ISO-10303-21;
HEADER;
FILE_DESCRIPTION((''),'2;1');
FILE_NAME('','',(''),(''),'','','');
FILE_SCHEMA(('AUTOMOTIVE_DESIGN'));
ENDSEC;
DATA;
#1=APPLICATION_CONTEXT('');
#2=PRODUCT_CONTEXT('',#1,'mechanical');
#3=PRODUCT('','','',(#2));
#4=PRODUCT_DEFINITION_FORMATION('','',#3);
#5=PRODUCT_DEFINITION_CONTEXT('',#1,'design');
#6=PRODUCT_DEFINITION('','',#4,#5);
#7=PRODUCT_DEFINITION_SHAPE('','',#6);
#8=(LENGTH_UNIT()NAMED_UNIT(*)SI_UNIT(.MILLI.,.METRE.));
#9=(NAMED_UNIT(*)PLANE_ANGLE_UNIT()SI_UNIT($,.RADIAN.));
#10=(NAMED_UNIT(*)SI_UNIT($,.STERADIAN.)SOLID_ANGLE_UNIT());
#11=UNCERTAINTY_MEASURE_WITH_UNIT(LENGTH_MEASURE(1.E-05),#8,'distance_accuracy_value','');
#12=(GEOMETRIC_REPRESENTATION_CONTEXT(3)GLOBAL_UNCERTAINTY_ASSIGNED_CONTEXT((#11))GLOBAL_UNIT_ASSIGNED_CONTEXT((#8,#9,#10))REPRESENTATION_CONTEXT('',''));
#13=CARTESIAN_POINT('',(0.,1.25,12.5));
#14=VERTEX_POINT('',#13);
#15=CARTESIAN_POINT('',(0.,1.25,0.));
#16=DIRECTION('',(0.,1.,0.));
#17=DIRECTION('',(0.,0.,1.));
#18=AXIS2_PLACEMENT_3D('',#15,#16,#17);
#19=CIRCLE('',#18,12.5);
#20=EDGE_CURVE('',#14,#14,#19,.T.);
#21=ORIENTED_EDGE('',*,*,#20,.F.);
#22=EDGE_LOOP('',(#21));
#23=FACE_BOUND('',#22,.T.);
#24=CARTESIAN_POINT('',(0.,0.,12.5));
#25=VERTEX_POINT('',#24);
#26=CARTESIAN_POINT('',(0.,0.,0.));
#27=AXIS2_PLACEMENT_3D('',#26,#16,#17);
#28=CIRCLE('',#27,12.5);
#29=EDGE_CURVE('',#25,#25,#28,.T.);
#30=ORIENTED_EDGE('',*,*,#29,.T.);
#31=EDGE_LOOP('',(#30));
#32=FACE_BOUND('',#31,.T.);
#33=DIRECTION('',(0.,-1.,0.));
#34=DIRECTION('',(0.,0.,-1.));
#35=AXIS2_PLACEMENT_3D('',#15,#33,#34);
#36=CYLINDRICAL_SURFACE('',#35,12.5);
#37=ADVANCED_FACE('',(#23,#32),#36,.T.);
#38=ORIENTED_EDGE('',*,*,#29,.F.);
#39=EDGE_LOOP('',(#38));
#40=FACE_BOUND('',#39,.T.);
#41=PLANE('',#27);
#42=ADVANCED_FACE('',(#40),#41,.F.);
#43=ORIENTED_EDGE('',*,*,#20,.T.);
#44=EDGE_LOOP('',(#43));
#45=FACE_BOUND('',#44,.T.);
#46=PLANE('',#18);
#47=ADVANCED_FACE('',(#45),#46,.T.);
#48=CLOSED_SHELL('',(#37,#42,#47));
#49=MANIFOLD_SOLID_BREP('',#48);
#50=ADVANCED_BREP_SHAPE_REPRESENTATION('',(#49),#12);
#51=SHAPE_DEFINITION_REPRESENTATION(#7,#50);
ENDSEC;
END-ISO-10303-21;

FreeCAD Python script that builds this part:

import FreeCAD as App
import Part
import Sketcher
from FreeCAD import Vector

doc = App.newDocument("Part")
body = doc.addObject("PartDesign::Body", "Body")

# Sketch on XZ plane
sketch1 = body.newObject("Sketcher::SketchObject", "Sketch")
sketch1.AttachmentSupport = (doc.getObject("XZ_Plane"), [""])
sketch1.MapMode = "FlatFace"
sketch1.addGeometry(Part.Circle(Vector(0, 0, 0), Vector(0, 0, 1), 12.5), False)
sketch1.addConstraint([
    Sketcher.Constraint("Coincident", 0, 3, -1, 1),
    Sketcher.Constraint("Diameter", 0, 25.0),
])
pad1 = body.newObject("PartDesign::Pad", "Pad")
pad1.Profile = sketch1
pad1.Length = 1.25
pad1.Reversed = True

doc.recompute()
